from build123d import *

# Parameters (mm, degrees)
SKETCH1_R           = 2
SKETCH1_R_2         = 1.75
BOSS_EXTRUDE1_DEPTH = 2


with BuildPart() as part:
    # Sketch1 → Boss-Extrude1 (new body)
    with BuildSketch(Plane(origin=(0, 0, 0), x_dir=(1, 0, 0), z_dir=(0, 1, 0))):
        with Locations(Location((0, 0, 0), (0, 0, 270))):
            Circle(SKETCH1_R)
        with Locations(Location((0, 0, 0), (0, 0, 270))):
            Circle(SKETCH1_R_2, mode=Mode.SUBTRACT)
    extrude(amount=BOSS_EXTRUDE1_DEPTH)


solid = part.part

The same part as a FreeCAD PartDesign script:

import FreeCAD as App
import Part
import Sketcher
Q = App.Units.Quantity

doc = App.newDocument("Part")
body = doc.addObject("PartDesign::Body", "Body")

# Sketch on XZ plane
sketch1 = body.newObject("Sketcher::SketchObject", "Sketch")
sketch1.AttachmentSupport = (doc.getObject("XZ_Plane"), [""])
sketch1.MapMode = "FlatFace"
sketch1.addGeometry([
    Part.Circle(App.Vector(0, 0, 0), App.Vector(0, 0, 1), 2),
    Part.Circle(App.Vector(0, 0, 0), App.Vector(0, 0, 1), 1.8),
], False)
sketch1.addConstraint([
    Sketcher.Constraint("Coincident", 0, 3, -1, 1),
    Sketcher.Constraint("Coincident", 1, 3, -1, 1),
    Sketcher.Constraint("Diameter", 0, Q("4 mm")),
    Sketcher.Constraint("Diameter", 1, Q("3.5 mm")),
])
pad1 = body.newObject("PartDesign::Pad", "Pad")
pad1.Profile = sketch1
pad1.Length = 2
pad1.Reversed = True

doc.recompute()
